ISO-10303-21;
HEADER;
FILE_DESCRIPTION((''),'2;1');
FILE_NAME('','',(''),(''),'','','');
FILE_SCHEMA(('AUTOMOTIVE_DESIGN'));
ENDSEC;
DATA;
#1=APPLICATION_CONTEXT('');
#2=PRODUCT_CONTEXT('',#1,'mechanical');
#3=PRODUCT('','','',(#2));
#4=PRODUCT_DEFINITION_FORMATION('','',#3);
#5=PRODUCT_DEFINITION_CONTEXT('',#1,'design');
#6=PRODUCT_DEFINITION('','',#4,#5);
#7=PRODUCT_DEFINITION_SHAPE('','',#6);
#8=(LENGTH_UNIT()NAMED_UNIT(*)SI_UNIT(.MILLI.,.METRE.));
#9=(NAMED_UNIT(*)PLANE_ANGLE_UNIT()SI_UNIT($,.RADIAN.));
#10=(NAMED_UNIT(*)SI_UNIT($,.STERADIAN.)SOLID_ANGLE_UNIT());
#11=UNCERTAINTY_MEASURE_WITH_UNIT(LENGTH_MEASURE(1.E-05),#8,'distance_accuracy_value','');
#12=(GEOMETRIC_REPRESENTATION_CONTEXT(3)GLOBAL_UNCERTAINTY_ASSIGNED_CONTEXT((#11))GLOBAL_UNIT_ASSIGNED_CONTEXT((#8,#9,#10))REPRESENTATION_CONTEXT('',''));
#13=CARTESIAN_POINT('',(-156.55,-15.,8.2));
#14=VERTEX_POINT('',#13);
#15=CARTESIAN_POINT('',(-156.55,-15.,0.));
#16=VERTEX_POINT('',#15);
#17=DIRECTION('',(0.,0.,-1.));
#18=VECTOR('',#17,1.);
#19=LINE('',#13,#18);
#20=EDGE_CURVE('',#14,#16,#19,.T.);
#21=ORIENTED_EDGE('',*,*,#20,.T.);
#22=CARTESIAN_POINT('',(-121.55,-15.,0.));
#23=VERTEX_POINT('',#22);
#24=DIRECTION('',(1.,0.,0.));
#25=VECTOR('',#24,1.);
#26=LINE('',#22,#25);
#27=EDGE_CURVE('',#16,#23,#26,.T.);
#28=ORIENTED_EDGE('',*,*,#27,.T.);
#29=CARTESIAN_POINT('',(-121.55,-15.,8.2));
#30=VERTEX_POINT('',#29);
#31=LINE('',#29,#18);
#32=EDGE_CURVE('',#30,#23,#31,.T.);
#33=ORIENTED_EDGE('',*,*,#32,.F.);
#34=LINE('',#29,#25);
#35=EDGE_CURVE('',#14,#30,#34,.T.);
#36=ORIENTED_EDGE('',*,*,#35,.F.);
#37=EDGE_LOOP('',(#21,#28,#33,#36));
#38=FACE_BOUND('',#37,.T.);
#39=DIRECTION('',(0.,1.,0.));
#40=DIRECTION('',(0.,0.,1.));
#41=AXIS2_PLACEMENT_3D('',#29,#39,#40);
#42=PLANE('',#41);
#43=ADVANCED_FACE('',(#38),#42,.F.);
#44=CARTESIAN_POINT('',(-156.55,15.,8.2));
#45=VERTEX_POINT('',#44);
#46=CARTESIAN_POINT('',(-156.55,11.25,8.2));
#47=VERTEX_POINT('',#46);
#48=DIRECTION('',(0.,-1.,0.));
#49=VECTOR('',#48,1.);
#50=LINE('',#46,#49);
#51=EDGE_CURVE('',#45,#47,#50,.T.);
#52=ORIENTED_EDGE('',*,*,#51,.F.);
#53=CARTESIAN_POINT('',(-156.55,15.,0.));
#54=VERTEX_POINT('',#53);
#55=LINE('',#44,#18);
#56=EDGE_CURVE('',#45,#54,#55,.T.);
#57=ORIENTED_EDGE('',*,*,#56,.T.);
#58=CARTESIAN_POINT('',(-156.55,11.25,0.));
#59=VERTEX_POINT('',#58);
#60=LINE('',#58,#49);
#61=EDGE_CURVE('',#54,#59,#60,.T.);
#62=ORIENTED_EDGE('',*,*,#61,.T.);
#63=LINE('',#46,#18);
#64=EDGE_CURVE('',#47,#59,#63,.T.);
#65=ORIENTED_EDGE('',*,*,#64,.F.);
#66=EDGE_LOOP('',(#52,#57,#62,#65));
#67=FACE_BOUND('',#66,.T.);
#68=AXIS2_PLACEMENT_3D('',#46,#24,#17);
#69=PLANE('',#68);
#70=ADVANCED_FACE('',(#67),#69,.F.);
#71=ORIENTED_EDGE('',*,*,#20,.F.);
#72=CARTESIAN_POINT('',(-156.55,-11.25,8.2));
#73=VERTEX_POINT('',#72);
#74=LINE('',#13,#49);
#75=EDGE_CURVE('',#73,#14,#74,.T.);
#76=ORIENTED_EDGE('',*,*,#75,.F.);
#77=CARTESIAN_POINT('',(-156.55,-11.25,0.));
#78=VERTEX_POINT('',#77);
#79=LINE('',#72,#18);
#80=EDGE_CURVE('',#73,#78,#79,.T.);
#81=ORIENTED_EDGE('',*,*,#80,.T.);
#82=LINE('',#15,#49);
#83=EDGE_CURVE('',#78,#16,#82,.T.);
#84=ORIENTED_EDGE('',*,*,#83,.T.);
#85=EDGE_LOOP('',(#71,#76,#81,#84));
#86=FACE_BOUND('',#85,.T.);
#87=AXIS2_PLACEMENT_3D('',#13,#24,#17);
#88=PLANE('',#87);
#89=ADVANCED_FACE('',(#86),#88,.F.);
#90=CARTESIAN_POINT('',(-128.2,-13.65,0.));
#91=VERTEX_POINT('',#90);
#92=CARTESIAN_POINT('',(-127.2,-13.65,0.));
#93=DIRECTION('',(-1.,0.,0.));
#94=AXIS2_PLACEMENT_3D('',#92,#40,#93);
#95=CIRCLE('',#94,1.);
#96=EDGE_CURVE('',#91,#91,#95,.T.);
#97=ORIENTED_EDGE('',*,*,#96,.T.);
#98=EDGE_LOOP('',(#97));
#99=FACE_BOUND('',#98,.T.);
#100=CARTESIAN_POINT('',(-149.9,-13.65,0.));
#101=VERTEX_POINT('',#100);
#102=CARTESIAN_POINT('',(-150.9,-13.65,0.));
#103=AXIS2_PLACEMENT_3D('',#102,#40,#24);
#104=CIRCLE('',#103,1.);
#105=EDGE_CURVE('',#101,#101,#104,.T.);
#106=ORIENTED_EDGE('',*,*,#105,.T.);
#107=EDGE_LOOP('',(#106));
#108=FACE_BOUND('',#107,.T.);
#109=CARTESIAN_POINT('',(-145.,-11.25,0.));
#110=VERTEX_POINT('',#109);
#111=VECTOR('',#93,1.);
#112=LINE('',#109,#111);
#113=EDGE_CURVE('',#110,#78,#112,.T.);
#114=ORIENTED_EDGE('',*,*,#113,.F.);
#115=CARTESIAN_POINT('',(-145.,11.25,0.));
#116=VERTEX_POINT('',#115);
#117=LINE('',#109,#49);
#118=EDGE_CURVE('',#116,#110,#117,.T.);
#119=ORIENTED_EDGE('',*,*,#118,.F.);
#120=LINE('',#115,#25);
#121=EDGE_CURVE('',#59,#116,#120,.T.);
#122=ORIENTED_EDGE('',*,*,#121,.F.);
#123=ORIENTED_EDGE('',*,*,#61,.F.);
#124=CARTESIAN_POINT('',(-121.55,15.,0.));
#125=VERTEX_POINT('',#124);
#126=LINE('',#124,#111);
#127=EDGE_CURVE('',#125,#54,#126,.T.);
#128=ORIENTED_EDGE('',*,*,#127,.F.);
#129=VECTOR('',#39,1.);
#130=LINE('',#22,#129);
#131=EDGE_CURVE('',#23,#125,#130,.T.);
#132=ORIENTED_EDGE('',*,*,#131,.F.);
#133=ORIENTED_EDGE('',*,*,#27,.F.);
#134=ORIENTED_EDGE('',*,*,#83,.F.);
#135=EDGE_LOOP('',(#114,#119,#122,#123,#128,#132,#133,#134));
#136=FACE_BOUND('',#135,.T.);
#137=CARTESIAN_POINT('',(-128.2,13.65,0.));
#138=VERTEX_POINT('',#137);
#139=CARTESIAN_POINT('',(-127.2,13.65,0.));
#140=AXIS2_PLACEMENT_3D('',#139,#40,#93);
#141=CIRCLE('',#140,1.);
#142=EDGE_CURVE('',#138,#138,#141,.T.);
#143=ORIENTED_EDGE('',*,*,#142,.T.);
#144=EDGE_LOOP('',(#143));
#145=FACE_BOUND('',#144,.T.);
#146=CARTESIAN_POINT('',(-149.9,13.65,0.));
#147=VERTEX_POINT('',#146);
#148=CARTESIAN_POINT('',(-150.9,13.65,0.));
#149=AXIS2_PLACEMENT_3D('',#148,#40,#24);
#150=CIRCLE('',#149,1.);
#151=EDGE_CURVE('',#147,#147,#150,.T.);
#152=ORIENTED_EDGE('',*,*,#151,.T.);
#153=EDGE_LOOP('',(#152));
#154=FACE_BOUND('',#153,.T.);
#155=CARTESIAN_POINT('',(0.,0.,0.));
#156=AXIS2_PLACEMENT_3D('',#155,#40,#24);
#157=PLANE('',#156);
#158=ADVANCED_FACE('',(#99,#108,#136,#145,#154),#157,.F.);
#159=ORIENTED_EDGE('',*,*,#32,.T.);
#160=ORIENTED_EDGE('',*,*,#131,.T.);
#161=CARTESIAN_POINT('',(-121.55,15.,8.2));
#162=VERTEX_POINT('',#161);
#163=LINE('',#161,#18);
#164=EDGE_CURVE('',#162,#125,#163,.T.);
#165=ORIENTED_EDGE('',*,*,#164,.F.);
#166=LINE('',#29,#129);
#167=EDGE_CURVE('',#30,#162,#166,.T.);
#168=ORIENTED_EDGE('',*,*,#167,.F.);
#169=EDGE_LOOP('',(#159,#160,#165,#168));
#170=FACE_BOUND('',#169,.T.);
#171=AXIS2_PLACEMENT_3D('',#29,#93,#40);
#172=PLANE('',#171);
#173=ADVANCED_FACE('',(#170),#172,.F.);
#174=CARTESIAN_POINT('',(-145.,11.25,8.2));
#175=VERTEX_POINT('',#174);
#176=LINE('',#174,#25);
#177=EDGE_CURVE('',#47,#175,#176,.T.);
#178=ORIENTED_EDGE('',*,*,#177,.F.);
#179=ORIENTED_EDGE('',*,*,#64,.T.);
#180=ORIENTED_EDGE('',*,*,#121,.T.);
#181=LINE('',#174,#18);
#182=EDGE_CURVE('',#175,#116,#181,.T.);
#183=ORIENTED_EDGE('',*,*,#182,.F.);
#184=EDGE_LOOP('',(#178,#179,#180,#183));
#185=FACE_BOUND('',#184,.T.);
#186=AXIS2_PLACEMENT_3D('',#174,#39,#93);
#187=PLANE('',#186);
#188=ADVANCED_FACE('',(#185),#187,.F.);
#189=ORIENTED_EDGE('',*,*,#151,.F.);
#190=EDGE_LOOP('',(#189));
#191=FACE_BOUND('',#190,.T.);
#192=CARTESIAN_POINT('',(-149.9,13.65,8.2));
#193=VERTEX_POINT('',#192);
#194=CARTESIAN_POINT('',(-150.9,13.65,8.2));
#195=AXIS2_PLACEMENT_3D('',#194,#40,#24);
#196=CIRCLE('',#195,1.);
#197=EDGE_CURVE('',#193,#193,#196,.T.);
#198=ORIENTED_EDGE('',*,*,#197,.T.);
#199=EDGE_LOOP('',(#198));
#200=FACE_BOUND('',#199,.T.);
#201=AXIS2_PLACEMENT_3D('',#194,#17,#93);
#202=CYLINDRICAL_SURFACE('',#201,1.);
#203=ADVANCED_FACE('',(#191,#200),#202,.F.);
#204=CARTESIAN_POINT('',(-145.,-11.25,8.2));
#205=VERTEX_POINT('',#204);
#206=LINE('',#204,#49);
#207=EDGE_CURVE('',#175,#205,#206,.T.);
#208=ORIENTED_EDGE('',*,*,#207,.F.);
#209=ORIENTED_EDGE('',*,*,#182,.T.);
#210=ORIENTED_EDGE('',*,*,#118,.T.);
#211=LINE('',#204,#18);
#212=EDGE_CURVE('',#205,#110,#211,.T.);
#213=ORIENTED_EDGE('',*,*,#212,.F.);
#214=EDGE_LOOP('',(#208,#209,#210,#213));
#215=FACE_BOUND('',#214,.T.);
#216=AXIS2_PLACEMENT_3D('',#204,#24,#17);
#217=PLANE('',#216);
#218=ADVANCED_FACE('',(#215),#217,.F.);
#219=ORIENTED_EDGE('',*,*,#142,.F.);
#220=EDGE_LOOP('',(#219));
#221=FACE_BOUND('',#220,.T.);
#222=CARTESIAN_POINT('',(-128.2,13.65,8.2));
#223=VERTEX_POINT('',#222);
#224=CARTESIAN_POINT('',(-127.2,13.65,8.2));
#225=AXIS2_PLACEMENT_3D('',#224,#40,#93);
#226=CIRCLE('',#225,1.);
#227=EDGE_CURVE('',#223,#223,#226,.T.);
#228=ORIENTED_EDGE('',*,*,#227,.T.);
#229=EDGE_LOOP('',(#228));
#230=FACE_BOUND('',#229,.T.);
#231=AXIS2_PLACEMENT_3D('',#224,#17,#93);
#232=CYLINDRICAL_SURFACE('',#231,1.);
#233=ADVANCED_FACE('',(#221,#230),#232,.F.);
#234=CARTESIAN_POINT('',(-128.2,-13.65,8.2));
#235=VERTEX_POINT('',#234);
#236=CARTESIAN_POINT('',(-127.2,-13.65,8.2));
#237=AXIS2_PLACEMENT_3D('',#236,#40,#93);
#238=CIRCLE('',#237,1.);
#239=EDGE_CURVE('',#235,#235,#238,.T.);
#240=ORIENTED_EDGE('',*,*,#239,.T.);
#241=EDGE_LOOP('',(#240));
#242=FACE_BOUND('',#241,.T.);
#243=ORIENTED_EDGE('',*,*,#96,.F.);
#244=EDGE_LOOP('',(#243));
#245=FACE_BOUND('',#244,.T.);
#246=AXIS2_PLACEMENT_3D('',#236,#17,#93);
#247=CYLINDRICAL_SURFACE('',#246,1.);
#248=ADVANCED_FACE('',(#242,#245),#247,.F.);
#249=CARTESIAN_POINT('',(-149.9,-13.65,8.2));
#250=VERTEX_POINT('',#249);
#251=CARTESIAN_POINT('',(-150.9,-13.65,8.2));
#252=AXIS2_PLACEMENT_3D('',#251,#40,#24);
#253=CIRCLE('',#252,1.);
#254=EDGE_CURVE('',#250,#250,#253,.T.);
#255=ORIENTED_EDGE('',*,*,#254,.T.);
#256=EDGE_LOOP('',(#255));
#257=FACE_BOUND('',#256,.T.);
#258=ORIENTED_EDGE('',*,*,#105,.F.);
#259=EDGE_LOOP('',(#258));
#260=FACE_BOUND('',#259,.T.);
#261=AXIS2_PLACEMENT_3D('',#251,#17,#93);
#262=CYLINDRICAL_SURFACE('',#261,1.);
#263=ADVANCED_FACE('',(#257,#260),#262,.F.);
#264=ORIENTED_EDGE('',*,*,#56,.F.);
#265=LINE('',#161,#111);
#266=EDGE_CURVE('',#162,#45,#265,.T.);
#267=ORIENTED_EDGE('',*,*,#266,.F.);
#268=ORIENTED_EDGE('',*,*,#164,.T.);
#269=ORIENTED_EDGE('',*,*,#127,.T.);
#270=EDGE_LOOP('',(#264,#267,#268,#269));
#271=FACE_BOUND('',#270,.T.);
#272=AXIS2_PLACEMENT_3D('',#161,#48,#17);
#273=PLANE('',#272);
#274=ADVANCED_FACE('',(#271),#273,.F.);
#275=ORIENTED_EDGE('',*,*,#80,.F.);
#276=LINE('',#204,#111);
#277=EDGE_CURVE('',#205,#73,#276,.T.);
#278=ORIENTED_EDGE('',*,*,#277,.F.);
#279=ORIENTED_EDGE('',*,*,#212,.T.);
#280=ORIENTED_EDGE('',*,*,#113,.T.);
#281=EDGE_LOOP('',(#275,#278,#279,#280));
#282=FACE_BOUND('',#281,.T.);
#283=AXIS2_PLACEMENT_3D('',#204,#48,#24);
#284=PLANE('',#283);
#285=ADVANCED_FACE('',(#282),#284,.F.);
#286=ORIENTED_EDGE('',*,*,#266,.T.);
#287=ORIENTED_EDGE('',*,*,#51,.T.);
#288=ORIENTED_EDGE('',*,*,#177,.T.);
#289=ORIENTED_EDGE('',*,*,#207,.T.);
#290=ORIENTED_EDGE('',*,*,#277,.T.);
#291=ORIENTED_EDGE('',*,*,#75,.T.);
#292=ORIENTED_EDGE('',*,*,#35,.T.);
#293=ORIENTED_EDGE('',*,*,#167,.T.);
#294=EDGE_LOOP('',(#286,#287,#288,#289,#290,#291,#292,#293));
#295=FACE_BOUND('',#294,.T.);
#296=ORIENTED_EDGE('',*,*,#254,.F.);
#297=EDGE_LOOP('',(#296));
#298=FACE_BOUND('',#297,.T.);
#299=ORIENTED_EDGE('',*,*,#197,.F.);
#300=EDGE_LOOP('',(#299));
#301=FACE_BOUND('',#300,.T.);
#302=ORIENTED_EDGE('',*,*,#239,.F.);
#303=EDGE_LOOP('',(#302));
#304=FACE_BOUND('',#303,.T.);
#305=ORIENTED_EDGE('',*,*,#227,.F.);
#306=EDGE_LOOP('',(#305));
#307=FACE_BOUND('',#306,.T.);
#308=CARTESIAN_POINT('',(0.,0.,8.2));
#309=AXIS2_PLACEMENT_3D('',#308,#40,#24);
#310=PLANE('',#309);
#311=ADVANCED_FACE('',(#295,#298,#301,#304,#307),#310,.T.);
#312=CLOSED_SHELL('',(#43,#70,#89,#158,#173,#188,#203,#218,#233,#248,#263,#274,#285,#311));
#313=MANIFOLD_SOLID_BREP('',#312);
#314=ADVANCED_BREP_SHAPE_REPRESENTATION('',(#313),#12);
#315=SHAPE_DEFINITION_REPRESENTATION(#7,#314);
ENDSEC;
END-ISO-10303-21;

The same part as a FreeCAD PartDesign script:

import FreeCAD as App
import Part
import Sketcher

V = App.Vector


def add_polygon(sketch, points):
    """Adds a closed chain of lines whose ends are joined by coincident constraints."""
    first, n = sketch.GeometryCount, len(points)
    for a, b in zip(points, points[1:] + points[:1]):
        sketch.addGeometry(Part.LineSegment(App.Vector(*a, 0), App.Vector(*b, 0)), False)
    for i in range(n):
        sketch.addConstraint(Sketcher.Constraint("Coincident", first + i, 2, first + (i + 1) % n, 1))

doc = App.newDocument("Part")
params = doc.addObject("Spreadsheet::Sheet", "Params")
for row, (alias, value) in enumerate([
    ("sketch1_diameter", "2 mm"),
    ("sketch1_width", "35 mm"),
    ("sketch1_height", "30 mm"),
    ("sketch1_height2", "22.5 mm"),
    ("sketch1_width2", "11.55 mm"),
    ("pad1_length", "8.2 mm"),
], start=1):
    params.set(f"A{row}", alias)
    params.set(f"B{row}", "=" + value)
    params.setAlias(f"B{row}", alias)

body = doc.addObject("PartDesign::Body", "Body")

sketch1 = body.newObject("Sketcher::SketchObject", "Sketch")
sketch1.AttachmentSupport = (doc.getObject("XY_Plane"), [""])
sketch1.MapMode = "FlatFace"
add_polygon(sketch1, [(-156.6, -15), (-121.5, -15), (-121.5, 15), (-156.6, 15), (-156.6, 11.2), (-145, 11.2), (-145, -11.2), (-156.6, -11.2)])
sketch1.addGeometry(Part.Circle(V(-127.2, -13.7, 0), V(0, 0, 1), 1), False)
sketch1.addGeometry(Part.Circle(V(-150.9, -13.7, 0), V(0, 0, 1), 1), False)
sketch1.addGeometry(Part.Circle(V(-127.2, 13.7, 0), V(0, 0, 1), 1), False)
sketch1.addGeometry(Part.Circle(V(-150.9, 13.7, 0), V(0, 0, 1), 1), False)
sketch1.addConstraint(Sketcher.Constraint("Horizontal", 0))
sketch1.addConstraint(Sketcher.Constraint("Vertical", 1))
sketch1.addConstraint(Sketcher.Constraint("Horizontal", 2))
sketch1.addConstraint(Sketcher.Constraint("Vertical", 3))
sketch1.addConstraint(Sketcher.Constraint("Horizontal", 4))
sketch1.addConstraint(Sketcher.Constraint("Vertical", 5))
sketch1.addConstraint(Sketcher.Constraint("Horizontal", 6))
sketch1.addConstraint(Sketcher.Constraint("Vertical", 7))
sketch1.addConstraint(Sketcher.Constraint("Equal", 8, 9))
sketch1.addConstraint(Sketcher.Constraint("Equal", 9, 10))
sketch1.addConstraint(Sketcher.Constraint("Equal", 10, 11))
sketch1.addConstraint(Sketcher.Constraint("Symmetric", 8, 3, 10, 3, -1))
sketch1.addConstraint(Sketcher.Constraint("Symmetric", 9, 3, 11, 3, -1))
sketch1.addConstraint(Sketcher.Constraint("Symmetric", 3, 2, 6, 2, -1))
sketch1.addConstraint(Sketcher.Constraint("Horizontal", 8, 3, 9, 3))
sketch1.addConstraint(Sketcher.Constraint("Equal", 3, 7))
sketch1.addConstraint(Sketcher.Constraint("Diameter", 8, 2.0))
sketch1.addConstraint(Sketcher.Constraint("DistanceX", 0, 1, 0, 2, 35.0))
sketch1.addConstraint(Sketcher.Constraint("DistanceY", 1, 1, 1, 2, 30.0))
sketch1.addConstraint(Sketcher.Constraint("DistanceY", 5, 2, 5, 1, 22.5))
sketch1.addConstraint(Sketcher.Constraint("DistanceX", 4, 2, -1, 1, 145.0))
sketch1.addConstraint(Sketcher.Constraint("DistanceX", 4, 1, 4, 2, 11.55))
sketch1.addConstraint(Sketcher.Constraint("DistanceX", 8, 3, -1, 1, 127.2))
sketch1.addConstraint(Sketcher.Constraint("DistanceX", 9, 3, -1, 1, 150.9))
sketch1.addConstraint(Sketcher.Constraint("DistanceY", 8, 3, 10, 3, 27.3))
sketch1.setExpression("Constraints[24]", "Params.sketch1_diameter")
sketch1.setExpression("Constraints[25]", "Params.sketch1_width")
sketch1.setExpression("Constraints[26]", "Params.sketch1_height")
sketch1.setExpression("Constraints[27]", "Params.sketch1_height2")
sketch1.setExpression("Constraints[29]", "Params.sketch1_width2")
pad1 = body.newObject("PartDesign::Pad", "Pad")
pad1.Profile = sketch1
pad1.setExpression("Length", "Params.pad1_length")

doc.recompute()
